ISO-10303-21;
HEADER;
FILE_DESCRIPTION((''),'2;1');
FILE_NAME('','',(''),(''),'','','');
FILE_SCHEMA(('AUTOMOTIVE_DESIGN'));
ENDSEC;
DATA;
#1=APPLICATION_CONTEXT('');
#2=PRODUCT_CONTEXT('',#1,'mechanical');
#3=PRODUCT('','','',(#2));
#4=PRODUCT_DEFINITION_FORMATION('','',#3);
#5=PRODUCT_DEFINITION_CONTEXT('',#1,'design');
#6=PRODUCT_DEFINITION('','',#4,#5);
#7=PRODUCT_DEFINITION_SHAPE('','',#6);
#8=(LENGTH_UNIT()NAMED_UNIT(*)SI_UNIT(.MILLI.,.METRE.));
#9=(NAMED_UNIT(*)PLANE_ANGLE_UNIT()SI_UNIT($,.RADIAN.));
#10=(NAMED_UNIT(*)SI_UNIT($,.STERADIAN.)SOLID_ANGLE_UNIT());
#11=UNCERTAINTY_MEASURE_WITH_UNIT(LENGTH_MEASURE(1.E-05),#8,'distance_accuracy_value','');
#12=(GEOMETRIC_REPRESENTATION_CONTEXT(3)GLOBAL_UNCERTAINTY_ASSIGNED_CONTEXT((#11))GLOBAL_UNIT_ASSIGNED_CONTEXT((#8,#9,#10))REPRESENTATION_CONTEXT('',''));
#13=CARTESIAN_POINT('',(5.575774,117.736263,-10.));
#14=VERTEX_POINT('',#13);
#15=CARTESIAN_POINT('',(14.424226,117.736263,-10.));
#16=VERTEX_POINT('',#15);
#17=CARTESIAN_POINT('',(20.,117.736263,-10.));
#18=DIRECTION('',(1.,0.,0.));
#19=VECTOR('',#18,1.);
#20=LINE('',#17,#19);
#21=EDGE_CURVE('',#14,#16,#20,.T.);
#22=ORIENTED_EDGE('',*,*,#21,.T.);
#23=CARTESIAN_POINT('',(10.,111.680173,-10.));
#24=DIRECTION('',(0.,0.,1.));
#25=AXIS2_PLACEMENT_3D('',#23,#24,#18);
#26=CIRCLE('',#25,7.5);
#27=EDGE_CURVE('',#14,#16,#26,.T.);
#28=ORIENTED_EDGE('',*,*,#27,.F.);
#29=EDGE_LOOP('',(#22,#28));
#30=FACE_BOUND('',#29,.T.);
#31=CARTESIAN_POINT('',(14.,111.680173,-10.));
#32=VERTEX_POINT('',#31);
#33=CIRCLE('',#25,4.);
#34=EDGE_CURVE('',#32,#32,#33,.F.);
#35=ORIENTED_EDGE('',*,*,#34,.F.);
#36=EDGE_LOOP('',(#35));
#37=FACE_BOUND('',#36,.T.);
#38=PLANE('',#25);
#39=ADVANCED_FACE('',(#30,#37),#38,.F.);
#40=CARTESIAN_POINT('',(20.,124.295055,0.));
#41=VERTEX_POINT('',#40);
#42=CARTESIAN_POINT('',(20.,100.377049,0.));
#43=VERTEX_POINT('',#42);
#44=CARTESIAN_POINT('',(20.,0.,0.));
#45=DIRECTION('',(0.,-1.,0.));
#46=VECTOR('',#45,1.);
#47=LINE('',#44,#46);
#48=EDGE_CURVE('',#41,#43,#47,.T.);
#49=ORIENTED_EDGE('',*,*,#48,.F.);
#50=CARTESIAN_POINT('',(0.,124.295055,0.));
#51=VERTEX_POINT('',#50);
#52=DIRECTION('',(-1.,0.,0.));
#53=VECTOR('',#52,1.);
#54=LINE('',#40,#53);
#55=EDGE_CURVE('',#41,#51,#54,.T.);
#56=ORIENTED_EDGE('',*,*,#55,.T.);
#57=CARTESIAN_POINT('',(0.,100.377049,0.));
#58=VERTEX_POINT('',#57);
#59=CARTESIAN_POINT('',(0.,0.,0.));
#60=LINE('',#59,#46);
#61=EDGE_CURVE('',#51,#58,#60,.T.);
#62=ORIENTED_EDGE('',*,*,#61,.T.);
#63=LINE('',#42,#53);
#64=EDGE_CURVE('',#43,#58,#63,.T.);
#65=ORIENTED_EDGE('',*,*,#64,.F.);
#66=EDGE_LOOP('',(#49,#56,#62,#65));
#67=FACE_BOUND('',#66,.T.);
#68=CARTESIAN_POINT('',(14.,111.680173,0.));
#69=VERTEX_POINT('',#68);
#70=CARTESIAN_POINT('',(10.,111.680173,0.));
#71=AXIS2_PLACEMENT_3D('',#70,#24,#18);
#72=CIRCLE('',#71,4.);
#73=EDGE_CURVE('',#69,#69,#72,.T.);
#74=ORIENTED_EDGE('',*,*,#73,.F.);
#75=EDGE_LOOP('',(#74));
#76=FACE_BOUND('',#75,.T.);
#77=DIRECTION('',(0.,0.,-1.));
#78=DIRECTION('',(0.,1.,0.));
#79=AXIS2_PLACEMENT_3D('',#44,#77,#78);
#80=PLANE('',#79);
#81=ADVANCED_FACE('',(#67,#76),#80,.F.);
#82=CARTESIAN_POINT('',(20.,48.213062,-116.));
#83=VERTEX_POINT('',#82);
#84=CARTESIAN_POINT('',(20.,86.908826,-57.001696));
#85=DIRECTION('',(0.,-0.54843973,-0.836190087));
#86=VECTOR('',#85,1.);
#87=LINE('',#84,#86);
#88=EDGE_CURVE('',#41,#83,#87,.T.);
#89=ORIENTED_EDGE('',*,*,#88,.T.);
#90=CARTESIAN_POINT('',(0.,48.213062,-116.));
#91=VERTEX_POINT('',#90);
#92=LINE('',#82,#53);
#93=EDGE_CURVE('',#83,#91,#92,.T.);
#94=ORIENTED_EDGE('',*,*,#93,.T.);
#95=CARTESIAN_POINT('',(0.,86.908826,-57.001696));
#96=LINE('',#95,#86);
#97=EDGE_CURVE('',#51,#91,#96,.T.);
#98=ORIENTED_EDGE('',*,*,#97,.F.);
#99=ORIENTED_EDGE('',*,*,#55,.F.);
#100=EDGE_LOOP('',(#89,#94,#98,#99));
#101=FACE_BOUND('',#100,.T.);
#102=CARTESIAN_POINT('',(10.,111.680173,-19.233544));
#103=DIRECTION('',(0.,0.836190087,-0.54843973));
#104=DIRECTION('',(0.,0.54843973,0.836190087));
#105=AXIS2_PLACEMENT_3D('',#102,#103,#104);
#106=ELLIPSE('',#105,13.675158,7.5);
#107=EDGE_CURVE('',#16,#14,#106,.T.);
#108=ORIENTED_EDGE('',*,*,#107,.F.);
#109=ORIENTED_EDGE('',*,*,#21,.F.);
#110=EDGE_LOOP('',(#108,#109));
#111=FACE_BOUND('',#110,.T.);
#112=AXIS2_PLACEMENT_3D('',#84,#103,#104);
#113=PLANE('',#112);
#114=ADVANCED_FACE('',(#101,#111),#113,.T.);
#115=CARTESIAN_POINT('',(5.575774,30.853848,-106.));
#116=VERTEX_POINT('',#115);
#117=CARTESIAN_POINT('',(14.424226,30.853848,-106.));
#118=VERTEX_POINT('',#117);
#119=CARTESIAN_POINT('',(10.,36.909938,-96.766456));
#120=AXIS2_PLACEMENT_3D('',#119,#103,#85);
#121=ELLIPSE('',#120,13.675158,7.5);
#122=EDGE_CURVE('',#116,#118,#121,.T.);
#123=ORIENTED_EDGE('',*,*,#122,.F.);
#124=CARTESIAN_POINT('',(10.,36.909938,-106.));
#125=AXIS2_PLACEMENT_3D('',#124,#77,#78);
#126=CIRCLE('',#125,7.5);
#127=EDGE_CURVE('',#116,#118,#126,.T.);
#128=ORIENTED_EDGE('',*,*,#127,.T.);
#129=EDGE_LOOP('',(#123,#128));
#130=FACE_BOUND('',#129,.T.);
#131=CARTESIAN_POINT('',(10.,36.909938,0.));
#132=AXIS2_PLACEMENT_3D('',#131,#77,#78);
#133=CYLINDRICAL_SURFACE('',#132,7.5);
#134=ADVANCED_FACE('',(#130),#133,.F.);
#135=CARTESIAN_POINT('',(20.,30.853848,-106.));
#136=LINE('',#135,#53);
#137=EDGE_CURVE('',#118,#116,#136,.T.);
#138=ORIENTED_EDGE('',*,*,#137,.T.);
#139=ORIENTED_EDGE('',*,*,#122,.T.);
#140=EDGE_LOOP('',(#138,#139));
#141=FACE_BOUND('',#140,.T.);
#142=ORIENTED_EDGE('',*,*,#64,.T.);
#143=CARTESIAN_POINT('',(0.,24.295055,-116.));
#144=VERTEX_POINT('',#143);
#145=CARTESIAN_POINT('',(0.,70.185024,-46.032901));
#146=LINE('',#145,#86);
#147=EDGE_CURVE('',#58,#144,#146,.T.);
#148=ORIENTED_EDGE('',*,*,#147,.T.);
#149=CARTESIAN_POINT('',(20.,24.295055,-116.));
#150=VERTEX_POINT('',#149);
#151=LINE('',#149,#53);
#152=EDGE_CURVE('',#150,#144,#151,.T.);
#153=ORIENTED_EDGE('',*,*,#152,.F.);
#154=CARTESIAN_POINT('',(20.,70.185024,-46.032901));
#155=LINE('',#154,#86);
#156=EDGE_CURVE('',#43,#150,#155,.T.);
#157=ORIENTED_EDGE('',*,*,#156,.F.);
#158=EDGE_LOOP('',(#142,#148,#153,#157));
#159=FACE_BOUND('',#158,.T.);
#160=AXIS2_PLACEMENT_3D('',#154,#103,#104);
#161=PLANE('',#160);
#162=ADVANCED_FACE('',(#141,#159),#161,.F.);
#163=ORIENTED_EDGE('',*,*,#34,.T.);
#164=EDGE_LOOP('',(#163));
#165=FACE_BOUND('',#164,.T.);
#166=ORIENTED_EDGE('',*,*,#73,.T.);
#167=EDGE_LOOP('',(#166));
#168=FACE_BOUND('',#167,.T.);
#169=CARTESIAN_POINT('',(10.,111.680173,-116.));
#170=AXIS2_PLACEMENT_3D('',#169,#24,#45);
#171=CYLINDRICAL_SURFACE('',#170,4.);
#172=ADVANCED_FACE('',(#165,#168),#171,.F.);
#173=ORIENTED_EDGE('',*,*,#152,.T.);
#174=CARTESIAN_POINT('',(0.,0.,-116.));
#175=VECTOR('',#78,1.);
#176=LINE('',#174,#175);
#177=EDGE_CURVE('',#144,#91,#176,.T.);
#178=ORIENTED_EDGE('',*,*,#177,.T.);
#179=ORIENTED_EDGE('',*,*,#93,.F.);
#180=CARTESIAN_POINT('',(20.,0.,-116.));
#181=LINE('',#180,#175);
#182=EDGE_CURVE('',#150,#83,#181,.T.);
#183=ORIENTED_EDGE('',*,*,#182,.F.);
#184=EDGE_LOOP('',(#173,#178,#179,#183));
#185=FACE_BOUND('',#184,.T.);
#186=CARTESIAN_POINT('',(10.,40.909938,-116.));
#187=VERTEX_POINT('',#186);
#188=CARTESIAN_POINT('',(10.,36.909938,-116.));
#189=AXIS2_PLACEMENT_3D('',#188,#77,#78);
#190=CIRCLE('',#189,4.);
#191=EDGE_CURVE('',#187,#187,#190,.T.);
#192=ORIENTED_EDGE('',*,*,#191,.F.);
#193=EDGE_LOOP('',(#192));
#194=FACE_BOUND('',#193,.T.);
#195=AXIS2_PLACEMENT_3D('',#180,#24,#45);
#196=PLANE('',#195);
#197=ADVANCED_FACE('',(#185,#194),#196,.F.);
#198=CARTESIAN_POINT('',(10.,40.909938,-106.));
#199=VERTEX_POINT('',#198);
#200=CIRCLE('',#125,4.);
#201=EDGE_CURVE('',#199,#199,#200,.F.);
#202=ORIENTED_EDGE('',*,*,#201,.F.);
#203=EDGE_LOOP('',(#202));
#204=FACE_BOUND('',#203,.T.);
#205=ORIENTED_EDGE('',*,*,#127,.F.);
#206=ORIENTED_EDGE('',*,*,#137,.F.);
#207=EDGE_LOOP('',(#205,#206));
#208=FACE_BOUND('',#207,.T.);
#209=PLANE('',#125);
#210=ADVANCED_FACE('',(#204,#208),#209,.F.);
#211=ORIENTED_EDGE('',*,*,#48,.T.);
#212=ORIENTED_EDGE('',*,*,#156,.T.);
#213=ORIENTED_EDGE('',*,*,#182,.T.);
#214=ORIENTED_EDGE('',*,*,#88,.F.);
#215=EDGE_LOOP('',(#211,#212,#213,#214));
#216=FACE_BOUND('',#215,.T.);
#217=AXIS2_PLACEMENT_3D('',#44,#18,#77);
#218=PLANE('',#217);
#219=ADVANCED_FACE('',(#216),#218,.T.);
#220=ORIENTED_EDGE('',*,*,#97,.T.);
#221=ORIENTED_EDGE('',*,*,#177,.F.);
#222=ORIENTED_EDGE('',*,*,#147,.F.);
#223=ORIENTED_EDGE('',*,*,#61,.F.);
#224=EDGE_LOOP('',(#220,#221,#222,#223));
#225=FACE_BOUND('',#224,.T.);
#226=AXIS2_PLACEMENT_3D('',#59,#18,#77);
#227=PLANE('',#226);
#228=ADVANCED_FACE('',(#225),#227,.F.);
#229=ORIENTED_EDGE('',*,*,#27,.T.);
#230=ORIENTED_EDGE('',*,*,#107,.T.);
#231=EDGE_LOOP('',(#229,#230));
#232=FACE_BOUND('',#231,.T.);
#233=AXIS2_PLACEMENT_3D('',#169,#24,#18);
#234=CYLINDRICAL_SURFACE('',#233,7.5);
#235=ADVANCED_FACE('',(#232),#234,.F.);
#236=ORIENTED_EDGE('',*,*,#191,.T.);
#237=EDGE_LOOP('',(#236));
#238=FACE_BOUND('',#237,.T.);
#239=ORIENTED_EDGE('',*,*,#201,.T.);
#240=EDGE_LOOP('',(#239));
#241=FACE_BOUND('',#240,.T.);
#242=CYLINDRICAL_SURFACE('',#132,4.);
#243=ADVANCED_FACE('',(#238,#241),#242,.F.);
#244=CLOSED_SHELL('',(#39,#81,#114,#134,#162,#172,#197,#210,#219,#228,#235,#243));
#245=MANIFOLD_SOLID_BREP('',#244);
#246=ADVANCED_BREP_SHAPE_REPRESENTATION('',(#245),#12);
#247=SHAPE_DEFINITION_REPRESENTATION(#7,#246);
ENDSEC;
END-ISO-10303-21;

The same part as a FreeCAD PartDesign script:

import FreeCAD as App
import Part
import Sketcher

V = App.Vector
Q = App.Units.Quantity


def add_polygon(sketch, points):
    """Adds a closed chain of lines whose ends are joined by coincident constraints."""
    first, n = sketch.GeometryCount, len(points)
    for a, b in zip(points, points[1:] + points[:1]):
        sketch.addGeometry(Part.LineSegment(App.Vector(*a, 0), App.Vector(*b, 0)), False)
    for i in range(n):
        sketch.addConstraint(Sketcher.Constraint("Coincident", first + i, 2, first + (i + 1) % n, 1))

doc = App.newDocument("Part")
body = doc.addObject("PartDesign::Body", "Body")

sketch1 = doc.addObject("Sketcher::SketchObject", "Sketch")
body.addObject(sketch1)
sketch1.AttachmentSupport = (doc.YZ_Plane, [""])
sketch1.MapMode = "FlatFace"
add_polygon(sketch1, [(48, -116), (124, 0), (100, 0), (24, -116)])
sketch1.addConstraint([
    Sketcher.Constraint("Horizontal", 1),
    Sketcher.Constraint("Horizontal", 3),
    Sketcher.Constraint("PointOnObject", 0, 2, -1),
    Sketcher.Constraint("Parallel", 0, 2),
    Sketcher.Constraint("DistanceY", 2, 2, -1, 1, Q("116 mm")),
    Sketcher.Constraint("DistanceX", 2, 2, 0, 2, Q("100 mm")),
    Sketcher.Constraint("Distance", 0, Q("138.724438 mm")),
    Sketcher.Constraint("DistanceX", -1, 1, 1, 2, Q("100.377049 mm")),
])
pad1 = doc.addObject("PartDesign::Pad", "Pad")
body.addObject(pad1)
pad1.Profile = sketch1
pad1.Length = 20

sketch2 = doc.addObject("Sketcher::SketchObject", "Sketch001")
body.addObject(sketch2)
sketch2.AttachmentSupport = (doc.XY_Plane, [""])
sketch2.MapMode = "FlatFace"
sketch2.addGeometry(Part.Circle(V(10, 111.7, 0), V(0, 0, 1), 4), False)
sketch2.addConstraint([
    Sketcher.Constraint("Diameter", 0, Q("8 mm")),
    Sketcher.Constraint("DistanceX", -1, 1, 0, 3, Q("10 mm")),
    Sketcher.Constraint("DistanceY", -1, 1, 0, 3, Q("111.680173 mm")),
])
pocket1 = doc.addObject("PartDesign::Pocket", "Pocket")
body.addObject(pocket1)
pocket1.Profile = sketch2
pocket1.Type = "ThroughAll"

sketch3 = doc.addObject("Sketcher::SketchObject", "Sketch002")
body.addObject(sketch3)
sketch3.AttachmentSupport = (doc.XY_Plane, [""])
sketch3.MapMode = "FlatFace"
sketch3.AttachmentOffset = App.Placement(V(0, 0, -10), App.Rotation())
sketch3.addGeometry(Part.Circle(V(10, 112, 0), V(0, 0, 1), 8), False)
sketch3.addConstraint([
    Sketcher.Constraint("Diameter", 0, Q("15 mm")),
    Sketcher.Constraint("DistanceX", -1, 1, 0, 3, Q("10 mm")),
    Sketcher.Constraint("DistanceY", -1, 1, 0, 3, Q("111.680173 mm")),
])
pocket2 = doc.addObject("PartDesign::Pocket", "Pocket001")
body.addObject(pocket2)
pocket2.Profile = sketch3
pocket2.Type = "ThroughAll"

sketch4 = doc.addObject("Sketcher::SketchObject", "Sketch003")
body.addObject(sketch4)
sketch4.AttachmentSupport = (doc.XY_Plane, [""])
sketch4.MapMode = "FlatFace"
sketch4.AttachmentOffset = App.Placement(V(0, 0, -116), App.Rotation())
sketch4.addGeometry(Part.Circle(V(10, 36.9, 0), V(0, 0, 1), 4), False)
sketch4.addConstraint([
    Sketcher.Constraint("Diameter", 0, Q("8 mm")),
    Sketcher.Constraint("DistanceX", -1, 1, 0, 3, Q("10 mm")),
    Sketcher.Constraint("DistanceY", -1, 1, 0, 3, Q("36.909938 mm")),
])
pocket3 = doc.addObject("PartDesign::Pocket", "Pocket002")
body.addObject(pocket3)
pocket3.Profile = sketch4
pocket3.Type = "ThroughAll"
pocket3.Reversed = True

sketch5 = doc.addObject("Sketcher::SketchObject", "Sketch004")
body.addObject(sketch5)
sketch5.AttachmentSupport = (doc.XY_Plane, [""])
sketch5.MapMode = "FlatFace"
sketch5.AttachmentOffset = App.Placement(V(0, 0, -106), App.Rotation())
sketch5.addGeometry(Part.Circle(V(10, 37, 0), V(0, 0, 1), 8), False)
sketch5.addConstraint([
    Sketcher.Constraint("Diameter", 0, Q("15 mm")),
    Sketcher.Constraint("DistanceX", -1, 1, 0, 3, Q("10 mm")),
    Sketcher.Constraint("DistanceY", -1, 1, 0, 3, Q("36.909938 mm")),
])
pocket4 = doc.addObject("PartDesign::Pocket", "Pocket003")
body.addObject(pocket4)
pocket4.Profile = sketch5
pocket4.Type = "ThroughAll"
pocket4.Reversed = True

doc.recompute()
